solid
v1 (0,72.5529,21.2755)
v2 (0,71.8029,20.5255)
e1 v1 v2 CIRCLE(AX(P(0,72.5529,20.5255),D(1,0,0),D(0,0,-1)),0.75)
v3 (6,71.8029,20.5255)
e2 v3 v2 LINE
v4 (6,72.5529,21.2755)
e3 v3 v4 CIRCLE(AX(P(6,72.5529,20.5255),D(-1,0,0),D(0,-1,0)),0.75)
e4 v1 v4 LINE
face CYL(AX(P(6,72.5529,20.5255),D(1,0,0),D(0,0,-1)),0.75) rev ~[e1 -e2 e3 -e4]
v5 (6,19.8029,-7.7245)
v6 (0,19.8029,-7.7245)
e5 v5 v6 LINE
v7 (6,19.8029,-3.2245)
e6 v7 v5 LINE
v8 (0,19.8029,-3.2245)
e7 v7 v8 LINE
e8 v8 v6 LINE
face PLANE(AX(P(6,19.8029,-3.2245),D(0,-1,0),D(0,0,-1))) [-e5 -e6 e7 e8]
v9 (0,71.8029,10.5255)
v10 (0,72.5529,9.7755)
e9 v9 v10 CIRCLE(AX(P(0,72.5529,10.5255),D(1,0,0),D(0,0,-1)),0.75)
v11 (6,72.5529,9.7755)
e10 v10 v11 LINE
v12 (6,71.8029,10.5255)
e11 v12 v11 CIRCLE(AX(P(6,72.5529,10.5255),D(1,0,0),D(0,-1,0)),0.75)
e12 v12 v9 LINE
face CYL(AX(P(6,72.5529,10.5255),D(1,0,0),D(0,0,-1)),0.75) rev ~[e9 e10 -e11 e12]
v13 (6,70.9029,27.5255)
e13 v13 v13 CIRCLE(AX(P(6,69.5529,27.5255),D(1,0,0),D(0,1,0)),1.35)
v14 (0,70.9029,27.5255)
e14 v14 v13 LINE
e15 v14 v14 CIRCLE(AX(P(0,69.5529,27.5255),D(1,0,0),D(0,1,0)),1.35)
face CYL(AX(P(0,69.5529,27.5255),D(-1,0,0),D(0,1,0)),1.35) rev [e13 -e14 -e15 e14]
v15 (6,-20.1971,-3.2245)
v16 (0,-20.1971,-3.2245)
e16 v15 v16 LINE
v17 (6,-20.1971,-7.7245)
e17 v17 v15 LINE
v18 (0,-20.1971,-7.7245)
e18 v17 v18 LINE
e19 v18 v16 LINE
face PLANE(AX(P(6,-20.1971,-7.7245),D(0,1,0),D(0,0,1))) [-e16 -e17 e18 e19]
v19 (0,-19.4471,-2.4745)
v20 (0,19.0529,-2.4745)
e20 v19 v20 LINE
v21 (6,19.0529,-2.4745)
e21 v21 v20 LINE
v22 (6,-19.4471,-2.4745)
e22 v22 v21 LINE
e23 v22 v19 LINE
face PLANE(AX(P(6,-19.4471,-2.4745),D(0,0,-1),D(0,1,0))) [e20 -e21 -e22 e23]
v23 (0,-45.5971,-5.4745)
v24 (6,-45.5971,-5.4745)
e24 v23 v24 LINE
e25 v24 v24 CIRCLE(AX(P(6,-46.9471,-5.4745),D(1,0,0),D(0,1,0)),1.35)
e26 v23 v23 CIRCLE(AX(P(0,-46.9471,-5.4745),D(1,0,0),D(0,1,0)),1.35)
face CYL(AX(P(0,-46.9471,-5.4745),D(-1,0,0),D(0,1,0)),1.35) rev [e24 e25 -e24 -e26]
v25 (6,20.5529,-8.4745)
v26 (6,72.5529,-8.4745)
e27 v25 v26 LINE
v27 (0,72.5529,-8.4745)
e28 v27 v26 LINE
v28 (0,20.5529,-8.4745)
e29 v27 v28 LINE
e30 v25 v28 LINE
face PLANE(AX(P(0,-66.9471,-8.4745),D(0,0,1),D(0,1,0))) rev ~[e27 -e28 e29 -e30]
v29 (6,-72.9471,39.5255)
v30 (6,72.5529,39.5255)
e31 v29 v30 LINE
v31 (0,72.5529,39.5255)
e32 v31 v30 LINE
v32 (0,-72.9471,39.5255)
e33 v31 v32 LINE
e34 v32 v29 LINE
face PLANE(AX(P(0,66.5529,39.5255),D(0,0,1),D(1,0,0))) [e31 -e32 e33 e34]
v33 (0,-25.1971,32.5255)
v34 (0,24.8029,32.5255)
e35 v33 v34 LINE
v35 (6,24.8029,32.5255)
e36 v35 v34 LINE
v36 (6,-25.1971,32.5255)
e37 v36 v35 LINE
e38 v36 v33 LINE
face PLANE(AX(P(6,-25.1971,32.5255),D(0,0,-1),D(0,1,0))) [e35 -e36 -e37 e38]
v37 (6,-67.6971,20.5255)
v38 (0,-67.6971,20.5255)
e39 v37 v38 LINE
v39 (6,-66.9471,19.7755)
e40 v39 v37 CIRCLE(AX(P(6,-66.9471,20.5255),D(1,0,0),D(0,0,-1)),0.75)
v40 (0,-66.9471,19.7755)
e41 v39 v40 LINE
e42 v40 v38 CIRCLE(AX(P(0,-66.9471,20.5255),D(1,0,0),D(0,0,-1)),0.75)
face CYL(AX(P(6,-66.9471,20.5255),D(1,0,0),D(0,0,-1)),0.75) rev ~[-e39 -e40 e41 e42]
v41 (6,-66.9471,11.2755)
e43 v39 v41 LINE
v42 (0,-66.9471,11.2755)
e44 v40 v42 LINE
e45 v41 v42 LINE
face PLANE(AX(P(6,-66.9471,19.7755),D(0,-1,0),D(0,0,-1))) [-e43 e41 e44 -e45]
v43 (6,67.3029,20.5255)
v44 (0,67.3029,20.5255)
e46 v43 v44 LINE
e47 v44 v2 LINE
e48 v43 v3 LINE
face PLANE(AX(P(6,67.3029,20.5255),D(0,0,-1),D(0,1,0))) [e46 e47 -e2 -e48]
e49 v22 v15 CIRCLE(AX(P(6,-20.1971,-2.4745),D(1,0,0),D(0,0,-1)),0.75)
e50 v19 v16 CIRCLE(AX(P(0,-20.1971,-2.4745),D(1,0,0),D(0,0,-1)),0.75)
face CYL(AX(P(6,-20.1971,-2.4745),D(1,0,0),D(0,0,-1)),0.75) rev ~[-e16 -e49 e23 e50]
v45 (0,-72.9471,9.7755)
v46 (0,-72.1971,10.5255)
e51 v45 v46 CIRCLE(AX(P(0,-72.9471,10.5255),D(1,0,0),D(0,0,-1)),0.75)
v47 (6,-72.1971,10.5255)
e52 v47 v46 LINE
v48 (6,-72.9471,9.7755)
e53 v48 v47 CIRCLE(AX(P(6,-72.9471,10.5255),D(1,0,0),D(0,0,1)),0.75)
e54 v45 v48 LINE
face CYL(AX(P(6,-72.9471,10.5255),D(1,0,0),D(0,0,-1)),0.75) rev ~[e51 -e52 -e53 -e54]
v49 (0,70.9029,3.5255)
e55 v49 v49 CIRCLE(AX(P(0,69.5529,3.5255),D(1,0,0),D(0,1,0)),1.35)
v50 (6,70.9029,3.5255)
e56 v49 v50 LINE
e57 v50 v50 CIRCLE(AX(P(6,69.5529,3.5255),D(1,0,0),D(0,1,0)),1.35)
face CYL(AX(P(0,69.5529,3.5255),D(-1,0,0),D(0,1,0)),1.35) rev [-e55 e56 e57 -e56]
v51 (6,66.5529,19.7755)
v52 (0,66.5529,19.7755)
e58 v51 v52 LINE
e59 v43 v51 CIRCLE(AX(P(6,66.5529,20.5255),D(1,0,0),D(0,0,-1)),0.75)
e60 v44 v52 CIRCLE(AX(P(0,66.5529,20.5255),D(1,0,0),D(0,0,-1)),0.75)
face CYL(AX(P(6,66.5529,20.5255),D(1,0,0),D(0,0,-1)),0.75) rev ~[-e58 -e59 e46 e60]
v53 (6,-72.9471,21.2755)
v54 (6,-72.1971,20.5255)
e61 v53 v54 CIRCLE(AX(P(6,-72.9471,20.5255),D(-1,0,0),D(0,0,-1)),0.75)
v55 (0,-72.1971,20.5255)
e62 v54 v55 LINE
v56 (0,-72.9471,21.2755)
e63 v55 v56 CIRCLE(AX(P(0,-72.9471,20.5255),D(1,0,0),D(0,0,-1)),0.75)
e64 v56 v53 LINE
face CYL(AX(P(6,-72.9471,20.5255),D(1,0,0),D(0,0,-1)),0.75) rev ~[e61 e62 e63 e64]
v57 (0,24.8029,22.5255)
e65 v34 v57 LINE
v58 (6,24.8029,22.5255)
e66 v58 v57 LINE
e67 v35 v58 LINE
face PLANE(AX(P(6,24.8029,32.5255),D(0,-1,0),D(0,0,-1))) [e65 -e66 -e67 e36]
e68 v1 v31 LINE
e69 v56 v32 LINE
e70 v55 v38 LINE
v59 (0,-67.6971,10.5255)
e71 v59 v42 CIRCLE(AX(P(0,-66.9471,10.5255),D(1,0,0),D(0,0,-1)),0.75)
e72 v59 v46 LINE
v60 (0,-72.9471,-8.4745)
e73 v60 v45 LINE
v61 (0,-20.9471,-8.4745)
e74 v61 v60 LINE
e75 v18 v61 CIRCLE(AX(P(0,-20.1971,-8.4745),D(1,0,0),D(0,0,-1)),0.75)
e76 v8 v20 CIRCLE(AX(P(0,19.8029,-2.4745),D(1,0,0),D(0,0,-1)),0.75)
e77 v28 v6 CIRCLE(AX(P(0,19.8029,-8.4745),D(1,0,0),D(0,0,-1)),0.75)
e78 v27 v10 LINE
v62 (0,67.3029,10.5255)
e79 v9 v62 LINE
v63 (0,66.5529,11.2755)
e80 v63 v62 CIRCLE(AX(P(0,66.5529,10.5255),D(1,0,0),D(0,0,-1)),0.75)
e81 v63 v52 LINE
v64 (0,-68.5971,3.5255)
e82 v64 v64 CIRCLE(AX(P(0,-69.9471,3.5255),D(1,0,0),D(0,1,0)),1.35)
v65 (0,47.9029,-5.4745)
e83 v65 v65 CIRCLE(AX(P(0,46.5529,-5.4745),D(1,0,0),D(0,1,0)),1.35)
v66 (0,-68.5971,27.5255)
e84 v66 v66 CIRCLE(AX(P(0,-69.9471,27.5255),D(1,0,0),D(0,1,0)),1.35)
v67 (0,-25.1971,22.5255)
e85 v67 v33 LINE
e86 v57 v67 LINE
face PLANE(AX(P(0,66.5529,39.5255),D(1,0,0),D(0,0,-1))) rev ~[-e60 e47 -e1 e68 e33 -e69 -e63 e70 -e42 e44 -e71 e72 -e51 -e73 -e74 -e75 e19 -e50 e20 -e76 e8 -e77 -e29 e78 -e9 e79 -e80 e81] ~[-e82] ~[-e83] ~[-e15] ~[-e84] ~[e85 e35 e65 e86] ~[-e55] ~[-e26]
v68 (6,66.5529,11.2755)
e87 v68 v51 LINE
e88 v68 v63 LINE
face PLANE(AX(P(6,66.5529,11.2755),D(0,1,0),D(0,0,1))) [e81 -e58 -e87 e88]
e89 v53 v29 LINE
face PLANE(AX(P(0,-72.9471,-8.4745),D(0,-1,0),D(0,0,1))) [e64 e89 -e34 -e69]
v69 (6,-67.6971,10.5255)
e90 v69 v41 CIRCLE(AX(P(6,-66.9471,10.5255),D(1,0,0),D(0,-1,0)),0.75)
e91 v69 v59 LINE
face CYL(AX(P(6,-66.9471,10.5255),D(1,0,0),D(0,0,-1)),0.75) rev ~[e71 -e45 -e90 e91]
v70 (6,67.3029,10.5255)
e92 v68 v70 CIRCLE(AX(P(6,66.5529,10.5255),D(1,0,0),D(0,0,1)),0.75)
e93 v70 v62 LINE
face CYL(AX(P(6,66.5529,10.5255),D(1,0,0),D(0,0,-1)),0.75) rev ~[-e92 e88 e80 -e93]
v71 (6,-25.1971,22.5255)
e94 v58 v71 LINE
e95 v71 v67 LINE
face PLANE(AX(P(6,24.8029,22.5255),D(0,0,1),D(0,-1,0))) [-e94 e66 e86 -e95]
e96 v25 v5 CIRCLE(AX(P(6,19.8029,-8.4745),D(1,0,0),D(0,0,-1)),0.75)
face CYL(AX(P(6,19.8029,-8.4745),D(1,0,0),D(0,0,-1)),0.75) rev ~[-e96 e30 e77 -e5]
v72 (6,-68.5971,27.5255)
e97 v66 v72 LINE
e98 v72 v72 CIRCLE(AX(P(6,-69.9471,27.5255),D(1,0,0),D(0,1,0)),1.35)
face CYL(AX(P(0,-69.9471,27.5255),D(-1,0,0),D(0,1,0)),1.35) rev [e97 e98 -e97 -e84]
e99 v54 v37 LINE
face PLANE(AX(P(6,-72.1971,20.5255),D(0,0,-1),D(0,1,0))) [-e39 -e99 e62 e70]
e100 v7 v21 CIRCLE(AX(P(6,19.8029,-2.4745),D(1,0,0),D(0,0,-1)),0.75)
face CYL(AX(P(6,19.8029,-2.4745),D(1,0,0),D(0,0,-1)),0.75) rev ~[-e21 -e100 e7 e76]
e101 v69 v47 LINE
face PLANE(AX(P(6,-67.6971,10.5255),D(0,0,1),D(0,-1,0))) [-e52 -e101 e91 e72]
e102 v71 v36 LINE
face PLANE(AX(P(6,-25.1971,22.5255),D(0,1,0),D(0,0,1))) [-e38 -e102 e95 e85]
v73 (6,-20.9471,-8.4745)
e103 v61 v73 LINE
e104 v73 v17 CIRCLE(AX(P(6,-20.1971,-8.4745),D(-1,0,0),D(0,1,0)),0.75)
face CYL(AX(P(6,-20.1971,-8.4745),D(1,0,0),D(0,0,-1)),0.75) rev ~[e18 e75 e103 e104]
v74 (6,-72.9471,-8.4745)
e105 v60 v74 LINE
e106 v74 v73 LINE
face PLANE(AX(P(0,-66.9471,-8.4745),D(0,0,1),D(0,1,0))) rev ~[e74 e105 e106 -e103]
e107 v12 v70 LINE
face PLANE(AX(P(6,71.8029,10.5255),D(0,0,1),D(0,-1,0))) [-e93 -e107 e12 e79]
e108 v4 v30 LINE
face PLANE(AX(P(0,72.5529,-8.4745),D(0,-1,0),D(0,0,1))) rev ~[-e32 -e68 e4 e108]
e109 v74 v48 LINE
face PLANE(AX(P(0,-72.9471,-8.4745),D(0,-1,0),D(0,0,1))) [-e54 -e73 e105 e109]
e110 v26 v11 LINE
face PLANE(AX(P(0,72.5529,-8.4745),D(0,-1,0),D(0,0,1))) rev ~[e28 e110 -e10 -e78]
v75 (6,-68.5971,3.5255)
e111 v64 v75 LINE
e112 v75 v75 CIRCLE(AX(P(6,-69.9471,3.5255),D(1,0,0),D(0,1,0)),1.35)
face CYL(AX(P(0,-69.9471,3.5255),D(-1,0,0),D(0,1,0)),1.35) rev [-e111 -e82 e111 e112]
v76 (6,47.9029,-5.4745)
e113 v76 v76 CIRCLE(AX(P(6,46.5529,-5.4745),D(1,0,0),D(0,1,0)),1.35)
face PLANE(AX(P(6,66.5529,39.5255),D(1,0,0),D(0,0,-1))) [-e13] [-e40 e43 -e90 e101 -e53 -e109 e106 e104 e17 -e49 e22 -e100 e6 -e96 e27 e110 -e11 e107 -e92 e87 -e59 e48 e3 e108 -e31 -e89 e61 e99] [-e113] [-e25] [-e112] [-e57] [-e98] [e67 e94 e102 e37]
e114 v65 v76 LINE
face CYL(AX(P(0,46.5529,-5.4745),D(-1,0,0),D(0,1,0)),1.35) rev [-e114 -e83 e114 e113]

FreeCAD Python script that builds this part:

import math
import FreeCAD as App
import Part
import Sketcher
from FreeCAD import Vector

doc = App.newDocument("Part")
body = doc.addObject("PartDesign::Body", "Body")

# Sketch on YZ plane
sketch1 = body.newObject("Sketcher::SketchObject", "Sketch")
sketch1.AttachmentSupport = (doc.getObject("YZ_Plane"), [""])
sketch1.MapMode = "FlatFace"
sketch1.addGeometry([
    Part.LineSegment(Vector(66.6, -2.5, 0), Vector(-66.9, -2.5, 0)),  # 0
    Part.LineSegment(Vector(-66.9, -2.5, 0), Vector(-66.9, 39.5, 0)),  # 1
    Part.LineSegment(Vector(-66.9, 39.5, 0), Vector(-72.9, 39.5, 0)),  # 2
    Part.LineSegment(Vector(-72.9, 39.5, 0), Vector(-72.9, -8.5, 0)),  # 3
    Part.LineSegment(Vector(-72.9, -8.5, 0), Vector(72.6, -8.5, 0)),  # 4
    Part.LineSegment(Vector(72.6, -8.5, 0), Vector(72.6, 39.5, 0)),  # 5
    Part.LineSegment(Vector(72.6, 39.5, 0), Vector(66.6, 39.5, 0)),  # 6
    Part.LineSegment(Vector(66.6, 39.5, 0), Vector(66.6, -2.5, 0)),  # 7
    Part.Circle(Vector(-46.9, -5.5, 0), Vector(0, 0, 1), 1.4),  # 8
    Part.Circle(Vector(46.6, -5.5, 0), Vector(0, 0, 1), 1.4),  # 9
    Part.Circle(Vector(-69.9, 27.5, 0), Vector(0, 0, 1), 1.4),  # 10
    Part.Circle(Vector(-69.9, 3.5, 0), Vector(0, 0, 1), 1.4),  # 11
    Part.Circle(Vector(69.6, 27.5, 0), Vector(0, 0, 1), 1.4),  # 12
    Part.Circle(Vector(69.6, 3.5, 0), Vector(0, 0, 1), 1.4),  # 13
], False)
sketch1.addConstraint([
    Sketcher.Constraint("Coincident", 0, 2, 1, 1),
    Sketcher.Constraint("Coincident", 1, 2, 2, 1),
    Sketcher.Constraint("Coincident", 2, 2, 3, 1),
    Sketcher.Constraint("Coincident", 3, 2, 4, 1),
    Sketcher.Constraint("Coincident", 4, 2, 5, 1),
    Sketcher.Constraint("Coincident", 5, 2, 6, 1),
    Sketcher.Constraint("Coincident", 6, 2, 7, 1),
    Sketcher.Constraint("Coincident", 7, 2, 0, 1),
    Sketcher.Constraint("Horizontal", 0),
    Sketcher.Constraint("Vertical", 1),
    Sketcher.Constraint("Horizontal", 2),
    Sketcher.Constraint("Vertical", 3),
    Sketcher.Constraint("Horizontal", 4),
    Sketcher.Constraint("Vertical", 5),
    Sketcher.Constraint("Horizontal", 6),
    Sketcher.Constraint("Vertical", 7),
    Sketcher.Constraint("Equal", 8, 9),
    Sketcher.Constraint("Equal", 9, 10),
    Sketcher.Constraint("Equal", 10, 11),
    Sketcher.Constraint("Equal", 11, 12),
    Sketcher.Constraint("Equal", 12, 13),
    Sketcher.Constraint("Horizontal", 8, 3, 9, 3),
    Sketcher.Constraint("Horizontal", 10, 3, 12, 3),
    Sketcher.Constraint("Horizontal", 11, 3, 13, 3),
    Sketcher.Constraint("Horizontal", 2, 2, 5, 2),
    Sketcher.Constraint("Vertical", 10, 3, 11, 3),
    Sketcher.Constraint("Vertical", 12, 3, 13, 3),
    Sketcher.Constraint("Equal", 2, 6),
    Sketcher.Constraint("Diameter", 8, 2.7),
    Sketcher.Constraint("DistanceX", 2, 2, 2, 1, 6.0),
    Sketcher.Constraint("DistanceY", 1, 1, 1, 2, 42.0),
    Sketcher.Constraint("DistanceY", 3, 2, 3, 1, 48.0),
    Sketcher.Constraint("DistanceX", 0, 2, 0, 1, 133.5),
    Sketcher.Constraint("DistanceX", 10, 3, 8, 3, 23.0),
    Sketcher.Constraint("DistanceY", 8, 3, 10, 3, 33.0),
    Sketcher.Constraint("DistanceY", 11, 3, 10, 3, 24.0),
    Sketcher.Constraint("DistanceX", 9, 3, 12, 3, 23.0),
    Sketcher.Constraint("DistanceX", 11, 3, 0, 2, 3.0),
    Sketcher.Constraint("DistanceY", 0, 2, 11, 3, 6.0),
    Sketcher.Constraint("DistanceX", 13, 3, 4, 2, 3.0),
    Sketcher.Constraint("DistanceX", 8, 3, -1, 1, 46.947),
    Sketcher.Constraint("DistanceY", 8, 3, -1, 1, 5.4745),
])
pad1 = body.newObject("PartDesign::Pad", "Pad")
pad1.Profile = sketch1
pad1.Length = 6

# Sketch on XZ plane
sketch2 = body.newObject("Sketcher::SketchObject", "Sketch001")
sketch2.AttachmentSupport = (doc.getObject("XZ_Plane"), [""])
sketch2.MapMode = "FlatFace"
sketch2.AttachmentOffset = App.Placement(Vector(0, 0, -66.5529), App.Rotation())
sketch2.addGeometry([
    Part.LineSegment(Vector(6, 40, 0), Vector(0, 40, 0)),
    Part.LineSegment(Vector(0, 40, 0), Vector(0, -2, 0)),
    Part.LineSegment(Vector(0, -2, 0), Vector(6, -2, 0)),
    Part.LineSegment(Vector(6, -2, 0), Vector(6, 40, 0)),
], False)
sketch2.addConstraint([
    Sketcher.Constraint("Coincident", 0, 2, 1, 1),
    Sketcher.Constraint("Coincident", 1, 2, 2, 1),
    Sketcher.Constraint("Coincident", 2, 2, 3, 1),
    Sketcher.Constraint("Coincident", 3, 2, 0, 1),
    Sketcher.Constraint("Horizontal", 0),
    Sketcher.Constraint("Vertical", 1),
    Sketcher.Constraint("Horizontal", 2),
    Sketcher.Constraint("Vertical", 3),
    Sketcher.Constraint("PointOnObject", 0, 2, -2),
    Sketcher.Constraint("DistanceX", 0, 2, 0, 1, 6.0),
    Sketcher.Constraint("DistanceY", 1, 2, 1, 1, 42.0),
    Sketcher.Constraint("DistanceY", -1, 1, 0, 2, 39.5255),
])
pad2 = body.newObject("PartDesign::Pad", "Pad001")
pad2.Profile = sketch2
pad2.Length = 133.5

# Sketch on YZ plane
sketch3 = body.newObject("Sketcher::SketchObject", "Sketch002")
sketch3.AttachmentSupport = (doc.getObject("YZ_Plane"), [""])
sketch3.MapMode = "FlatFace"
sketch3.AttachmentOffset = App.Placement(Vector(0, 0, 6), App.Rotation())
sketch3.addGeometry([
    Part.LineSegment(Vector(-25, 33, 0), Vector(-25, 23, 0)),
    Part.LineSegment(Vector(-25, 23, 0), Vector(25, 23, 0)),
    Part.LineSegment(Vector(25, 23, 0), Vector(25, 33, 0)),
    Part.LineSegment(Vector(25, 33, 0), Vector(-25, 33, 0)),
], False)
sketch3.addConstraint([
    Sketcher.Constraint("Coincident", 0, 2, 1, 1),
    Sketcher.Constraint("Coincident", 1, 2, 2, 1),
    Sketcher.Constraint("Coincident", 2, 2, 3, 1),
    Sketcher.Constraint("Coincident", 3, 2, 0, 1),
    Sketcher.Constraint("Vertical", 0),
    Sketcher.Constraint("Horizontal", 1),
    Sketcher.Constraint("Vertical", 2),
    Sketcher.Constraint("Horizontal", 3),
    Sketcher.Constraint("DistanceX", 1, 1, 1, 2, 50.0),
    Sketcher.Constraint("DistanceY", 0, 2, 0, 1, 10.0),
    Sketcher.Constraint("DistanceX", 0, 2, -1, 1, 25.197),
    Sketcher.Constraint("DistanceY", -1, 1, 0, 2, 22.5255),
])
pocket1 = body.newObject("PartDesign::Pocket", "Pocket")
pocket1.Profile = sketch3
pocket1.Length = 10

# Sketch on YZ plane
sketch4 = body.newObject("Sketcher::SketchObject", "Sketch003")
sketch4.AttachmentSupport = (doc.getObject("YZ_Plane"), [""])
sketch4.MapMode = "FlatFace"
sketch4.AttachmentOffset = App.Placement(Vector(0, 0, 6), App.Rotation())
sketch4.addGeometry([
    Part.ArcOfCircle(Part.Circle(Vector(72.6, 20.5, 0), Vector(0, 0, 1), 0.8), math.radians(-90), math.radians(180)),  # 0
    Part.LineSegment(Vector(71.8, 20.5, 0), Vector(67.3, 20.5, 0)),  # 1
    Part.ArcOfCircle(Part.Circle(Vector(66.6, 20.5, 0), Vector(0, 0, 1), 0.8), math.radians(0), math.radians(270)),  # 2
    Part.LineSegment(Vector(66.6, 19.8, 0), Vector(66.6, 11.3, 0)),  # 3
    Part.ArcOfCircle(Part.Circle(Vector(66.6, 10.5, 0), Vector(0, 0, 1), 0.8), math.radians(90), math.radians(360)),  # 4
    Part.LineSegment(Vector(67.3, 10.5, 0), Vector(71.8, 10.5, 0)),  # 5
    Part.ArcOfCircle(Part.Circle(Vector(72.6, 10.5, 0), Vector(0, 0, 1), 0.8), math.radians(180), math.radians(450)),  # 6
    Part.LineSegment(Vector(72.6, 11.3, 0), Vector(72.6, 19.8, 0)),  # 7
    Part.ArcOfCircle(Part.Circle(Vector(-72.9, 20.5, 0), Vector(0, 0, 1), 0.8), math.radians(0), math.radians(270)),  # 8
    Part.LineSegment(Vector(-72.9, 19.8, 0), Vector(-72.9, 11.3, 0)),  # 9
    Part.ArcOfCircle(Part.Circle(Vector(-72.9, 10.5, 0), Vector(0, 0, 1), 0.8), math.radians(90), math.radians(360)),  # 10
    Part.LineSegment(Vector(-72.2, 10.5, 0), Vector(-67.7, 10.5, 0)),  # 11
    Part.ArcOfCircle(Part.Circle(Vector(-66.9, 10.5, 0), Vector(0, 0, 1), 0.8), math.radians(180), math.radians(450)),  # 12
    Part.LineSegment(Vector(-66.9, 11.3, 0), Vector(-66.9, 19.8, 0)),  # 13
    Part.ArcOfCircle(Part.Circle(Vector(-66.9, 20.5, 0), Vector(0, 0, 1), 0.8), math.radians(-90), math.radians(180)),  # 14
    Part.LineSegment(Vector(-67.7, 20.5, 0), Vector(-72.2, 20.5, 0)),  # 15
], False)
sketch4.addConstraint([
    Sketcher.Constraint("Coincident", 0, 2, 1, 1),
    Sketcher.Constraint("Coincident", 1, 2, 2, 1),
    Sketcher.Constraint("Coincident", 2, 2, 3, 1),
    Sketcher.Constraint("Coincident", 3, 2, 4, 1),
    Sketcher.Constraint("Coincident", 4, 2, 5, 1),
    Sketcher.Constraint("Coincident", 5, 2, 6, 1),
    Sketcher.Constraint("Coincident", 6, 2, 7, 1),
    Sketcher.Constraint("Coincident", 7, 2, 0, 1),
    Sketcher.Constraint("Coincident", 8, 2, 9, 1),
    Sketcher.Constraint("Coincident", 9, 2, 10, 1),
    Sketcher.Constraint("Coincident", 10, 2, 11, 1),
    Sketcher.Constraint("Coincident", 11, 2, 12, 1),
    Sketcher.Constraint("Coincident", 12, 2, 13, 1),
    Sketcher.Constraint("Coincident", 13, 2, 14, 1),
    Sketcher.Constraint("Coincident", 14, 2, 15, 1),
    Sketcher.Constraint("Coincident", 15, 2, 8, 1),
    Sketcher.Constraint("Horizontal", 1),
    Sketcher.Constraint("Vertical", 3),
    Sketcher.Constraint("Horizontal", 5),
    Sketcher.Constraint("Vertical", 7),
    Sketcher.Constraint("Vertical", 9),
    Sketcher.Constraint("Horizontal", 11),
    Sketcher.Constraint("Vertical", 13),
    Sketcher.Constraint("Horizontal", 15),
    Sketcher.Constraint("Equal", 0, 2),
    Sketcher.Constraint("Equal", 2, 4),
    Sketcher.Constraint("Equal", 4, 6),
    Sketcher.Constraint("Equal", 6, 8),
    Sketcher.Constraint("Equal", 8, 10),
    Sketcher.Constraint("Equal", 10, 12),
    Sketcher.Constraint("Equal", 12, 14),
    Sketcher.Constraint("Horizontal", 0, 3, 2, 3),
    Sketcher.Constraint("Horizontal", 4, 3, 6, 3),
    Sketcher.Constraint("Horizontal", 2, 3, 8, 3),
    Sketcher.Constraint("Horizontal", 6, 3, 10, 3),
    Sketcher.Constraint("Horizontal", 10, 3, 12, 3),
    Sketcher.Constraint("Horizontal", 8, 3, 14, 3),
    Sketcher.Constraint("Horizontal", 14, 3, 0, 2),
    Sketcher.Constraint("Horizontal", 12, 3, 4, 2),
    Sketcher.Constraint("Horizontal", 5, 2, 10, 2),
    Sketcher.Constraint("Horizontal", 1, 2, 14, 2),
    Sketcher.Constraint("Vertical", 2, 3, 4, 3),
    Sketcher.Constraint("Vertical", 0, 3, 6, 3),
    Sketcher.Constraint("Vertical", 8, 3, 10, 3),
    Sketcher.Constraint("Vertical", 12, 3, 14, 3),
    Sketcher.Constraint("Vertical", 4, 3, 2, 2),
    Sketcher.Constraint("Vertical", 0, 3, 6, 2),
    Sketcher.Constraint("Vertical", 10, 3, 8, 2),
    Sketcher.Constraint("Vertical", 14, 3, 12, 2),
    Sketcher.Constraint("Equal", 5, 11),
    Sketcher.Constraint("Radius", 0, 0.75),
    Sketcher.Constraint("DistanceX", 2, 3, 0, 3, 6.0),
    Sketcher.Constraint("DistanceY", 4, 3, 2, 3, 10.0),
    Sketcher.Constraint("DistanceX", 8, 3, 2, 3, 139.5),
    Sketcher.Constraint("DistanceX", -1, 1, 0, 3, 72.553),
    Sketcher.Constraint("DistanceY", -1, 1, 0, 3, 20.5255),
])
pocket2 = body.newObject("PartDesign::Pocket", "Pocket001")
pocket2.Profile = sketch4
pocket2.Length = 10

# Sketch on YZ plane
sketch5 = body.newObject("Sketcher::SketchObject", "Sketch004")
sketch5.AttachmentSupport = (doc.getObject("YZ_Plane"), [""])
sketch5.MapMode = "FlatFace"
sketch5.AttachmentOffset = App.Placement(Vector(0, 0, 6), App.Rotation())
sketch5.addGeometry([
    Part.ArcOfCircle(Part.Circle(Vector(-20.2, -8.5, 0), Vector(0, 0, 1), 0.8), math.radians(90), math.radians(360)),  # 0
    Part.LineSegment(Vector(-19.4, -8.5, 0), Vector(20.6, -8.5, 0)),  # 1
    Part.ArcOfCircle(Part.Circle(Vector(19.8, -8.5, 0), Vector(0, 0, 1), 0.8), math.radians(0), math.radians(90)),  # 2
    Part.LineSegment(Vector(19.8, -7.7, 0), Vector(19.8, -3.2, 0)),  # 3
    Part.ArcOfCircle(Part.Circle(Vector(19.8, -2.5, 0), Vector(0, 0, 1), 0.8), math.radians(-90), math.radians(180)),  # 4
    Part.LineSegment(Vector(19.1, -2.5, 0), Vector(-19.4, -2.5, 0)),  # 5
    Part.ArcOfCircle(Part.Circle(Vector(-20.2, -2.5, 0), Vector(0, 0, 1), 0.8), math.radians(0), math.radians(270)),  # 6
    Part.LineSegment(Vector(-20.2, -3.2, 0), Vector(-20.2, -7.7, 0)),  # 7
], False)
sketch5.addConstraint([
    Sketcher.Constraint("Coincident", 0, 2, 1, 1),
    Sketcher.Constraint("Coincident", 1, 2, 2, 1),
    Sketcher.Constraint("Coincident", 2, 2, 3, 1),
    Sketcher.Constraint("Coincident", 3, 2, 4, 1),
    Sketcher.Constraint("Coincident", 4, 2, 5, 1),
    Sketcher.Constraint("Coincident", 5, 2, 6, 1),
    Sketcher.Constraint("Coincident", 6, 2, 7, 1),
    Sketcher.Constraint("Coincident", 7, 2, 0, 1),
    Sketcher.Constraint("Horizontal", 1),
    Sketcher.Constraint("Vertical", 3),
    Sketcher.Constraint("Horizontal", 5),
    Sketcher.Constraint("Vertical", 7),
    Sketcher.Constraint("Equal", 0, 2),
    Sketcher.Constraint("Equal", 2, 4),
    Sketcher.Constraint("Equal", 4, 6),
    Sketcher.Constraint("Horizontal", 0, 3, 2, 3),
    Sketcher.Constraint("Horizontal", 4, 3, 6, 3),
    Sketcher.Constraint("Horizontal", 2, 3, 0, 2),
    Sketcher.Constraint("Horizontal", 6, 3, 4, 2),
    Sketcher.Constraint("Vertical", 2, 3, 4, 3),
    Sketcher.Constraint("Vertical", 0, 3, 6, 3),
    Sketcher.Constraint("Vertical", 4, 3, 2, 2),
    Sketcher.Constraint("Vertical", 0, 3, 6, 2),
    Sketcher.Constraint("DistanceX", 1, 1, 1, 2, 40.0),
    Sketcher.Constraint("Radius", 0, 0.75),
    Sketcher.Constraint("DistanceY", 3, 1, 3, 2, 4.5),
    Sketcher.Constraint("DistanceX", 0, 3, -1, 1, 20.197),
    Sketcher.Constraint("DistanceY", 0, 3, -1, 1, 8.4745),
])
pocket3 = body.newObject("PartDesign::Pocket", "Pocket002")
pocket3.Profile = sketch5
pocket3.Length = 10

doc.recompute()
